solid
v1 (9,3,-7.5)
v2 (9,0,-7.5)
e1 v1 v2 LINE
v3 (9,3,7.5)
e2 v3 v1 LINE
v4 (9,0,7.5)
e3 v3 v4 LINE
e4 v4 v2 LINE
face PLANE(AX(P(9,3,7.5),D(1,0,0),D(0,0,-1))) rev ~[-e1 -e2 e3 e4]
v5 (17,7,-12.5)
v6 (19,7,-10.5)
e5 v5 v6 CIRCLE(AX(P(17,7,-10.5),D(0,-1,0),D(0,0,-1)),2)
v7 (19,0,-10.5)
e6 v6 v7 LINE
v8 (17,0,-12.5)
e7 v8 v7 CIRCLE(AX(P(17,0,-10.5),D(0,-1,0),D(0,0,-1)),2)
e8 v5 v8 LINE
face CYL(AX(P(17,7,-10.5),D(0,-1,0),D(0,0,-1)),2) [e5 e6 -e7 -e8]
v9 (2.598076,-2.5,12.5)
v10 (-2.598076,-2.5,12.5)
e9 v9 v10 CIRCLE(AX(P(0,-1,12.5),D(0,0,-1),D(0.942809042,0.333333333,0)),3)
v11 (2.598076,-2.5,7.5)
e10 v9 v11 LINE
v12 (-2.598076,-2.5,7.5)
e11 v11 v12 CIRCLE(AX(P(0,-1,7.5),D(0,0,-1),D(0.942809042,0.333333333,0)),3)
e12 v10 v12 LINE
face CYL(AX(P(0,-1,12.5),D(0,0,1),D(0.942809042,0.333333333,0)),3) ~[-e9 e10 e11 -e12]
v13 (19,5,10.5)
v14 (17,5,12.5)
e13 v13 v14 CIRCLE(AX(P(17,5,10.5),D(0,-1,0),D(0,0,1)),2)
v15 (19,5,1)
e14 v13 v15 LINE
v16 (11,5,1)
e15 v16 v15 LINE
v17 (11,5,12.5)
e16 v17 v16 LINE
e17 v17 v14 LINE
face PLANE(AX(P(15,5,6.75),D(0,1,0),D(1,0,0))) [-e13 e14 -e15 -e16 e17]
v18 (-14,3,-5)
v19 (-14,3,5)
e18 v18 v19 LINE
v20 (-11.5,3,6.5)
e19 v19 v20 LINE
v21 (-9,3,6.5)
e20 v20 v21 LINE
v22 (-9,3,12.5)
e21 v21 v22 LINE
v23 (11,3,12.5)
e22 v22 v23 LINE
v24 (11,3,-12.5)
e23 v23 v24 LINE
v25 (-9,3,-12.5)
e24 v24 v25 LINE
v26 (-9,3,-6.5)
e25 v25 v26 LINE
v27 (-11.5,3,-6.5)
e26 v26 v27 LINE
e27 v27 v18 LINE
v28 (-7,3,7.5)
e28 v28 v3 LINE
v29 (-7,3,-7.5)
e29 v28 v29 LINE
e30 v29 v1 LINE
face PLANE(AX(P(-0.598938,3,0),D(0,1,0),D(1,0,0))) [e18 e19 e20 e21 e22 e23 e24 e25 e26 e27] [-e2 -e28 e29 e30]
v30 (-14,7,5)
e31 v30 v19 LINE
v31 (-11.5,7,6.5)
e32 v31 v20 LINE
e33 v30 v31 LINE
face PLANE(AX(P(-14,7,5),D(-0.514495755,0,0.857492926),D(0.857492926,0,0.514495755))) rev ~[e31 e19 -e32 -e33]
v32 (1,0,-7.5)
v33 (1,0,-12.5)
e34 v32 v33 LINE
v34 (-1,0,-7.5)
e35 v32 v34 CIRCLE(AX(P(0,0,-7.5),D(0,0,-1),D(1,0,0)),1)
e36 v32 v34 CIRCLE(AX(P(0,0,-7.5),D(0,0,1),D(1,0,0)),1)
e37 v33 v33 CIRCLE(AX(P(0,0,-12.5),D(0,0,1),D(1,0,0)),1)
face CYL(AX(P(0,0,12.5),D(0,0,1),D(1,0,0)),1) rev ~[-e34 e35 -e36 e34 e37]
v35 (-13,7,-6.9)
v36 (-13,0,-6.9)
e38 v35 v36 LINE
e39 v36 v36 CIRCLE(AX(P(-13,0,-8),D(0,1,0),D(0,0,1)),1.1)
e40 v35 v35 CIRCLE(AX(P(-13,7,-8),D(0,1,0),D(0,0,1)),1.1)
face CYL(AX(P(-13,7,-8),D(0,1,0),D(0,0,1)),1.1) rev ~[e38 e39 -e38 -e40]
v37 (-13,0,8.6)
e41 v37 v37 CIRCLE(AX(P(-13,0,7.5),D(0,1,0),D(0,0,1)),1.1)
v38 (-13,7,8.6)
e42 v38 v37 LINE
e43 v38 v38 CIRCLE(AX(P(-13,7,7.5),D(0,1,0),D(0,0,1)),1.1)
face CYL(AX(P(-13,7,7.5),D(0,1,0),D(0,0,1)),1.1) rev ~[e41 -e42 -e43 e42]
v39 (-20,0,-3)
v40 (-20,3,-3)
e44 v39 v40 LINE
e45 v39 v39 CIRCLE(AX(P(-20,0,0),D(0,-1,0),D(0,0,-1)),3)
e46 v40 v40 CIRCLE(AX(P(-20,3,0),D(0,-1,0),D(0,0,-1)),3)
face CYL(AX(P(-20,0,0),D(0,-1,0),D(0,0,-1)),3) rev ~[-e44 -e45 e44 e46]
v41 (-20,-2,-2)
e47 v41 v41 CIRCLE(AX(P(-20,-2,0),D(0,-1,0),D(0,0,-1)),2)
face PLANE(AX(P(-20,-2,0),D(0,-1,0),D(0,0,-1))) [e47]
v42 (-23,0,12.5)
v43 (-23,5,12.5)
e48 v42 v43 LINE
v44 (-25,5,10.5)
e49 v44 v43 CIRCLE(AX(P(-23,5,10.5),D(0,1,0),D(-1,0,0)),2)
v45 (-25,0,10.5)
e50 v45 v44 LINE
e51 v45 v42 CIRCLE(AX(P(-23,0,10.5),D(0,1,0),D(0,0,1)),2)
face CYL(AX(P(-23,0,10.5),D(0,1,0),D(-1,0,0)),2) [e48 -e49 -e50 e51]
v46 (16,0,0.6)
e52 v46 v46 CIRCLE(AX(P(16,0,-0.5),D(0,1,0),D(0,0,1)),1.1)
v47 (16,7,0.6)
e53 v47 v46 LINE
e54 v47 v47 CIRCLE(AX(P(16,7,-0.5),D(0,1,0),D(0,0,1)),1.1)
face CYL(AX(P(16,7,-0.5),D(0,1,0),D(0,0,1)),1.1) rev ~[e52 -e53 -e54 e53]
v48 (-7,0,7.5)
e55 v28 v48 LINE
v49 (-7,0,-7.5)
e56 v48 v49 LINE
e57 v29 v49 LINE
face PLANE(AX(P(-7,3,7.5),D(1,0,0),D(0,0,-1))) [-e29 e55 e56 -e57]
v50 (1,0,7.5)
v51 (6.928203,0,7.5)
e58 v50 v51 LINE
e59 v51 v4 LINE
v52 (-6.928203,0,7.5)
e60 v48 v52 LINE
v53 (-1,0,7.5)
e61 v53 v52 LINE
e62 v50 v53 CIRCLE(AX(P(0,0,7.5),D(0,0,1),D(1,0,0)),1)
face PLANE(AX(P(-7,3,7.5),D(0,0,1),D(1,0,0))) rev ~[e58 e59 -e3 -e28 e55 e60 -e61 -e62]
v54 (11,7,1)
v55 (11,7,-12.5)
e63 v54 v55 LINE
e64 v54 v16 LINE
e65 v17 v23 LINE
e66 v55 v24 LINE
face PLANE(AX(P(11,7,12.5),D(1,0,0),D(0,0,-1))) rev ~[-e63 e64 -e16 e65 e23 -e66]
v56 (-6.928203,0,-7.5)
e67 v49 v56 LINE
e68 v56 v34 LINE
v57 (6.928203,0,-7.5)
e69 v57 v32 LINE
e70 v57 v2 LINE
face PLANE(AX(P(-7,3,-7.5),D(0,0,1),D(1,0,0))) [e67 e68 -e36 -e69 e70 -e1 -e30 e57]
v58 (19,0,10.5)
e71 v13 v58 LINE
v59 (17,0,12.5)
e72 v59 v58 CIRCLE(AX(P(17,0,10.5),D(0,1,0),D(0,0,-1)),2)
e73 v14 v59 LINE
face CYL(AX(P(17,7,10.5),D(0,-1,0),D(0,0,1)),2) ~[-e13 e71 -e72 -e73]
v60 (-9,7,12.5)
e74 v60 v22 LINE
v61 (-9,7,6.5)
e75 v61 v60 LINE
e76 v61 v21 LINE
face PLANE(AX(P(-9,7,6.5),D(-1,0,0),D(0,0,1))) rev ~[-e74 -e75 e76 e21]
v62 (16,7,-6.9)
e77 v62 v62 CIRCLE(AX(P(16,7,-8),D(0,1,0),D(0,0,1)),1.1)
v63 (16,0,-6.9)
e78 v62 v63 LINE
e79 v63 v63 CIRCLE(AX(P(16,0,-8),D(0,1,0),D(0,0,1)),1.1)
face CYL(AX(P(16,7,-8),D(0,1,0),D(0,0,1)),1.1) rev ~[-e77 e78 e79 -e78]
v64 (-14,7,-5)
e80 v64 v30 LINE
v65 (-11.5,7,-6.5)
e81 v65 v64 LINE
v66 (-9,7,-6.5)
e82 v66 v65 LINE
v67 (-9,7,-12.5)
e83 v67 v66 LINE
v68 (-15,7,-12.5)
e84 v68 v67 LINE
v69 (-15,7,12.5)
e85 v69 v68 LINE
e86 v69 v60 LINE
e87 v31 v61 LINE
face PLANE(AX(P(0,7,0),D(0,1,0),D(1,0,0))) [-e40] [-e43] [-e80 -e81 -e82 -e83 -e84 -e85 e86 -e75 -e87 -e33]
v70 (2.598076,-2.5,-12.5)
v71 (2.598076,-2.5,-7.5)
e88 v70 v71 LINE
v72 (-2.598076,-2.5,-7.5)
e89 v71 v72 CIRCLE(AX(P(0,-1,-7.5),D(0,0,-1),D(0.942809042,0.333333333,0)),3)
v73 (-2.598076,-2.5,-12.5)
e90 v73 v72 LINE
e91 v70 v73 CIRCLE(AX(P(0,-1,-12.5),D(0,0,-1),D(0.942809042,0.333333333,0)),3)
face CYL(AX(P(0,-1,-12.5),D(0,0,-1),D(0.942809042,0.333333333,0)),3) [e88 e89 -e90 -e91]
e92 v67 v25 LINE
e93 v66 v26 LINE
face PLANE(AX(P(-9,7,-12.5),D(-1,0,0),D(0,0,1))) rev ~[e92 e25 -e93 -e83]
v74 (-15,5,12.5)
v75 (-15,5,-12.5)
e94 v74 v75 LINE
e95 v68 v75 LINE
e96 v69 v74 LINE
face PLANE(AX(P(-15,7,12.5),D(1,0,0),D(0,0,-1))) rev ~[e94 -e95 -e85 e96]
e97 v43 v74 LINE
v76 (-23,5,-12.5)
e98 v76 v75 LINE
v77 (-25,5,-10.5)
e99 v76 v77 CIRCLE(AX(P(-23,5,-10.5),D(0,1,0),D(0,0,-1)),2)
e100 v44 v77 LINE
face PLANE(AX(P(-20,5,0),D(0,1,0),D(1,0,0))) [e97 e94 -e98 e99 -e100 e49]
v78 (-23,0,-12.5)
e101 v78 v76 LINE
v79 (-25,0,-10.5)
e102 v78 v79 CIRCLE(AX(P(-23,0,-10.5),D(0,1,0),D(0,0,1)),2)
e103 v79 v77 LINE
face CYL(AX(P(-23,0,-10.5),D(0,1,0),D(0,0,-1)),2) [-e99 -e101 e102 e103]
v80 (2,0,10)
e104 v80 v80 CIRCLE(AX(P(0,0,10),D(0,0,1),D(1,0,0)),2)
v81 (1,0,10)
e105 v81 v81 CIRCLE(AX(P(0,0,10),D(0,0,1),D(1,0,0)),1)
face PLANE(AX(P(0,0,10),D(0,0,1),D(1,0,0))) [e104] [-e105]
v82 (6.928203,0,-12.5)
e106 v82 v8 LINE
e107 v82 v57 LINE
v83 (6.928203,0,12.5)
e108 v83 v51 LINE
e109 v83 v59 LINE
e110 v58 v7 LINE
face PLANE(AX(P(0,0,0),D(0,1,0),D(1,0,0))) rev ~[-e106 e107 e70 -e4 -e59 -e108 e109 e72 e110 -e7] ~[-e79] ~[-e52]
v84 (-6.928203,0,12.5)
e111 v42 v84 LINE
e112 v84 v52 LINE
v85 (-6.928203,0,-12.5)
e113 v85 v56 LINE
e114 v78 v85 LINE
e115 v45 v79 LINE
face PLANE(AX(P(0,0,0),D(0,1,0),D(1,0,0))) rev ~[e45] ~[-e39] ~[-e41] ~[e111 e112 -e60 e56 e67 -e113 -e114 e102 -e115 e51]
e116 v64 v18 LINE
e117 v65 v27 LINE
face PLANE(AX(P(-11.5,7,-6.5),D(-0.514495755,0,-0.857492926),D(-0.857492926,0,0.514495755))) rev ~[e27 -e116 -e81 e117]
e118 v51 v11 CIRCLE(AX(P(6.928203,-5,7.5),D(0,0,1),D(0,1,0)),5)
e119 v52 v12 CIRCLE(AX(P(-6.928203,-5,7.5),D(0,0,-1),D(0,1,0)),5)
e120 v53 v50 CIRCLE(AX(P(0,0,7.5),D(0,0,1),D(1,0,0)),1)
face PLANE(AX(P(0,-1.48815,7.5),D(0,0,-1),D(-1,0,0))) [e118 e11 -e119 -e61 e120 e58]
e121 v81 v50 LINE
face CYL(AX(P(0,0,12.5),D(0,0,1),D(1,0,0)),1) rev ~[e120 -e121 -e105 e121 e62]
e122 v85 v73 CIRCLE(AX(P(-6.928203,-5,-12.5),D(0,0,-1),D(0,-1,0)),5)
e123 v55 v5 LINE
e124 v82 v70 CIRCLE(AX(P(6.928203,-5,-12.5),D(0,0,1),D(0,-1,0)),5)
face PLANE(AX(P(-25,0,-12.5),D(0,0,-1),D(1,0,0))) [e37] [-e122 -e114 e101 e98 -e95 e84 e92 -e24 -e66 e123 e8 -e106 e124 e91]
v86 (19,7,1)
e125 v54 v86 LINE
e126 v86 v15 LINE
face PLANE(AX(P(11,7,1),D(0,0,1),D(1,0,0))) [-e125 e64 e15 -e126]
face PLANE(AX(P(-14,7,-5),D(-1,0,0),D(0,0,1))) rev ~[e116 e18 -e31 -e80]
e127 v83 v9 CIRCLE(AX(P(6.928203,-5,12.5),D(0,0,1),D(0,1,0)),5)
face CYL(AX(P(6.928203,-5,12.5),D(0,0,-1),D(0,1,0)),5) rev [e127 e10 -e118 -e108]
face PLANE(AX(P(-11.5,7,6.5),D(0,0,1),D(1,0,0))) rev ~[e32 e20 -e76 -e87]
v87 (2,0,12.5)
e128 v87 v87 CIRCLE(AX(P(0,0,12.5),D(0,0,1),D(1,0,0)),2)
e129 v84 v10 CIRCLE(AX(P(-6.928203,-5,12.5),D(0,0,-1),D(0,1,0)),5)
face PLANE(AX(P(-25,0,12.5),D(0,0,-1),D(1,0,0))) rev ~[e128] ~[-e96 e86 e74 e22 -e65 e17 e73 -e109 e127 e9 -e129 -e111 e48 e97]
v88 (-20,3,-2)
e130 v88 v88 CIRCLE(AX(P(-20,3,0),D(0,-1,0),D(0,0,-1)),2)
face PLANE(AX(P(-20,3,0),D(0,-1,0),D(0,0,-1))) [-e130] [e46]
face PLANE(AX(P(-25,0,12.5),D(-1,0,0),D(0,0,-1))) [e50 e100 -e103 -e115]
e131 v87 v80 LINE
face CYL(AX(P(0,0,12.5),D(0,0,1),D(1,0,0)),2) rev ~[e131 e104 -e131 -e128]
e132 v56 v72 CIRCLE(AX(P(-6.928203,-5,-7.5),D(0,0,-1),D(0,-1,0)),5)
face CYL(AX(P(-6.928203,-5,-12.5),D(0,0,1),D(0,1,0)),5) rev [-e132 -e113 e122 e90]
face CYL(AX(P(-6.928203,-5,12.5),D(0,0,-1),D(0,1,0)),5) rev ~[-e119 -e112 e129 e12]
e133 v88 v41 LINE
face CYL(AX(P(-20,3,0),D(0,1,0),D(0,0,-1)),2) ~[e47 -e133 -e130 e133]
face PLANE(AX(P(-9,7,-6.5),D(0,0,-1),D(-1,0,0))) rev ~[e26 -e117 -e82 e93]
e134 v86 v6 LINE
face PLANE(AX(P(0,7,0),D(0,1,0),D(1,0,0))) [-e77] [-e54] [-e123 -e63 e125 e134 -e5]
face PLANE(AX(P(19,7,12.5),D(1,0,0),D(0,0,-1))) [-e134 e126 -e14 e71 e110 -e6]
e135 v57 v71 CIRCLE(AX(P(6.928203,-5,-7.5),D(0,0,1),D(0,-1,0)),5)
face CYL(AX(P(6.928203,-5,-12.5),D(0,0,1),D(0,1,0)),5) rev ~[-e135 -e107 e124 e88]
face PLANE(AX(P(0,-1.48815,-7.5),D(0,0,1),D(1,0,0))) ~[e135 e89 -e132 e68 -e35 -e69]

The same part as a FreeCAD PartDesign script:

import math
import FreeCAD as App
import Part
import Sketcher
from FreeCAD import Vector


def edges_at(feature, points):
    """Names of the edges that pass closest to the given points."""
    edges = feature.Shape.Edges
    near = lambda p: min(range(len(edges)), key=lambda i: edges[i].distToShape(Part.Vertex(*p))[0])
    return sorted({f"Edge{near(p) + 1}" for p in points})


def add_polygon(sketch, points):
    """Adds a closed chain of lines whose ends are joined by coincident constraints."""
    first, n = sketch.GeometryCount, len(points)
    for a, b in zip(points, points[1:] + points[:1]):
        sketch.addGeometry(Part.LineSegment(App.Vector(*a, 0), App.Vector(*b, 0)), False)
    for i in range(n):
        sketch.addConstraint(Sketcher.Constraint("Coincident", first + i, 2, first + (i + 1) % n, 1))

doc = App.newDocument("Part")
body = doc.addObject("PartDesign::Body", "Body")

sketch1 = doc.addObject("Sketcher::SketchObject", "Sketch")
body.addObject(sketch1)
sketch1.AttachmentSupport = (doc.XZ_Plane, [""])
sketch1.MapMode = "FlatFace"
add_polygon(sketch1, [(-25, -12), (-25, 12), (25, 12), (25, -12)])
sketch1.addConstraint(Sketcher.Constraint("Vertical", 0))
sketch1.addConstraint(Sketcher.Constraint("Horizontal", 1))
sketch1.addConstraint(Sketcher.Constraint("Vertical", 2))
sketch1.addConstraint(Sketcher.Constraint("Horizontal", 3))
sketch1.addConstraint(Sketcher.Constraint("Symmetric", 0, 2, 2, 2, -1, 1))
sketch1.addConstraint(Sketcher.Constraint("DistanceX", 1, 1, 1, 2, 50.0))
sketch1.addConstraint(Sketcher.Constraint("DistanceY", 0, 1, 0, 2, 25.0))
pad1 = doc.addObject("PartDesign::Pad", "Pad")
body.addObject(pad1)
pad1.Profile = sketch1
pad1.Length = 7
pad1.Reversed = True

sketch2 = doc.addObject("Sketcher::SketchObject", "Sketch001")
body.addObject(sketch2)
sketch2.AttachmentSupport = (doc.XY_Plane, [""])
sketch2.MapMode = "FlatFace"
sketch2.AttachmentOffset = App.Placement(Vector(0, 0, 12.5), App.Rotation())
sketch2.addGeometry(Part.LineSegment(Vector(2.8, 0, 0), Vector(-2.8, 0, 0)), False)
sketch2.addGeometry(Part.ArcOfCircle(Part.Circle(Vector(0, -1, 0), Vector(0, 0, 1), 3), math.radians(161), math.radians(379)), False)
sketch2.addConstraint(Sketcher.Constraint("Coincident", 0, 1, 1, 2))
sketch2.addConstraint(Sketcher.Constraint("Coincident", 1, 1, 0, 2))
sketch2.addConstraint(Sketcher.Constraint("Horizontal", 0))
sketch2.addConstraint(Sketcher.Constraint("Symmetric", 0, 1, 1, 1, -1, 1))
sketch2.addConstraint(Sketcher.Constraint("Radius", 1, 3.0))
sketch2.addConstraint(Sketcher.Constraint("DistanceY", 1, 3, -1, 1, 1.0))
pad2 = doc.addObject("PartDesign::Pad", "Pad001")
body.addObject(pad2)
pad2.Profile = sketch2
pad2.Length = 5
pad2.Reversed = True

sketch3 = doc.addObject("Sketcher::SketchObject", "Sketch002")
body.addObject(sketch3)
sketch3.AttachmentSupport = (doc.XY_Plane, [""])
sketch3.MapMode = "FlatFace"
sketch3.AttachmentOffset = App.Placement(Vector(0, 0, 12.5), App.Rotation())
sketch3.addGeometry(Part.Circle(Vector(0, 0, 0), Vector(0, 0, 1), 1), False)
sketch3.addConstraint(Sketcher.Constraint("Coincident", 0, 3, -1, 1))
sketch3.addConstraint(Sketcher.Constraint("Diameter", 0, 2.0))
pocket1 = doc.addObject("PartDesign::Pocket", "Pocket")
body.addObject(pocket1)
pocket1.Profile = sketch3
pocket1.Type = "ThroughAll"
doc.recompute()

mirrored = doc.addObject("PartDesign::Mirrored", "Mirrored")
body.addObject(mirrored)
mirrored.Originals = [pad2, pocket1]
mirrored.MirrorPlane = (doc.XY_Plane, [""])
body.Tip = mirrored

sketch4 = doc.addObject("Sketcher::SketchObject", "Sketch003")
body.addObject(sketch4)
sketch4.AttachmentSupport = (doc.XZ_Plane, [""])
sketch4.MapMode = "FlatFace"
sketch4.AttachmentOffset = App.Placement(Vector(0, 0, -7), App.Rotation())
add_polygon(sketch4, [(19, -12), (19, 12), (25, 12), (25, -12)])
sketch4.addConstraint(Sketcher.Constraint("Vertical", 0))
sketch4.addConstraint(Sketcher.Constraint("Horizontal", 1))
sketch4.addConstraint(Sketcher.Constraint("Vertical", 2))
sketch4.addConstraint(Sketcher.Constraint("Horizontal", 3))
sketch4.addConstraint(Sketcher.Constraint("DistanceX", 1, 1, 1, 2, 6.0))
sketch4.addConstraint(Sketcher.Constraint("DistanceY", 0, 1, 0, 2, 25.0))
sketch4.addConstraint(Sketcher.Constraint("DistanceX", -1, 1, 0, 2, 19.0))
sketch4.addConstraint(Sketcher.Constraint("DistanceY", -1, 1, 0, 2, 12.5))
pocket2 = doc.addObject("PartDesign::Pocket", "Pocket001")
body.addObject(pocket2)
pocket2.Profile = sketch4
pocket2.Type = "ThroughAll"
pocket2.Reversed = True

sketch5 = doc.addObject("Sketcher::SketchObject", "Sketch004")
body.addObject(sketch5)
sketch5.AttachmentSupport = (doc.XY_Plane, [""])
sketch5.MapMode = "FlatFace"
sketch5.AttachmentOffset = App.Placement(Vector(0, 0, 12.5), App.Rotation())
sketch5.addGeometry(Part.Circle(Vector(0, 0, 0), Vector(0, 0, 1), 2), False)
sketch5.addConstraint(Sketcher.Constraint("Coincident", 0, 3, -1, 1))
sketch5.addConstraint(Sketcher.Constraint("Diameter", 0, 4.0))
pocket3 = doc.addObject("PartDesign::Pocket", "Pocket002")
body.addObject(pocket3)
pocket3.Profile = sketch5
pocket3.Length = 2.5
doc.recompute()

fillet = doc.addObject("PartDesign::Fillet", "Fillet")
body.addObject(fillet)
fillet.Base = (pocket3, edges_at(pocket3, [
    (19, 3.5, 12.5),
    (19, 3.5, -12.5),
    (-25, 3.5, 12.5),
    (-25, 3.5, -12.5),
]))
fillet.Radius = 2
doc.recompute()

fillet2 = doc.addObject("PartDesign::Fillet", "Fillet001")
body.addObject(fillet2)
fillet2.Base = (fillet, edges_at(fillet, [
    (2.828, 0, 10),
    (-2.828, 0, 10),
    (2.828, 0, -10),
    (-2.828, 0, -10),
]))
fillet2.Radius = 5

sketch6 = doc.addObject("Sketcher::SketchObject", "Sketch005")
body.addObject(sketch6)
sketch6.AttachmentSupport = (doc.XZ_Plane, [""])
sketch6.MapMode = "FlatFace"
sketch6.AttachmentOffset = App.Placement(Vector(0, 0, -7), App.Rotation())
sketch6.addGeometry(Part.Circle(Vector(-13, -8, 0), Vector(0, 0, 1), 1.1), False)
sketch6.addGeometry(Part.Circle(Vector(-13, 7.5, 0), Vector(0, 0, 1), 1.1), False)
sketch6.addGeometry(Part.Circle(Vector(16, -8, 0), Vector(0, 0, 1), 1.1), False)
sketch6.addGeometry(Part.Circle(Vector(16, -0.5, 0), Vector(0, 0, 1), 1.1), False)
sketch6.addConstraint(Sketcher.Constraint("Equal", 0, 1))
sketch6.addConstraint(Sketcher.Constraint("Equal", 1, 2))
sketch6.addConstraint(Sketcher.Constraint("Equal", 2, 3))
sketch6.addConstraint(Sketcher.Constraint("Horizontal", 0, 3, 2, 3))
sketch6.addConstraint(Sketcher.Constraint("Vertical", 0, 3, 1, 3))
sketch6.addConstraint(Sketcher.Constraint("Vertical", 2, 3, 3, 3))
sketch6.addConstraint(Sketcher.Constraint("Diameter", 0, 2.2))
sketch6.addConstraint(Sketcher.Constraint("DistanceX", 0, 3, -1, 1, 13.0))
sketch6.addConstraint(Sketcher.Constraint("DistanceY", 0, 3, -1, 1, 8.0))
sketch6.addConstraint(Sketcher.Constraint("DistanceX", -1, 1, 2, 3, 16.0))
sketch6.addConstraint(Sketcher.Constraint("DistanceY", 3, 3, 1, 3, 8.0))
sketch6.addConstraint(Sketcher.Constraint("DistanceY", -1, 1, 1, 3, 7.5))
pocket4 = doc.addObject("PartDesign::Pocket", "Pocket003")
body.addObject(pocket4)
pocket4.Profile = sketch6
pocket4.Type = "ThroughAll"
pocket4.Reversed = True

sketch7 = doc.addObject("Sketcher::SketchObject", "Sketch006")
body.addObject(sketch7)
sketch7.AttachmentSupport = (doc.XZ_Plane, [""])
sketch7.MapMode = "FlatFace"
sketch7.AttachmentOffset = App.Placement(Vector(0, 0, -7), App.Rotation())
add_polygon(sketch7, [(-9, 12.5), (11, 12.5), (11, -12.5), (-9, -12.5), (-9, -6.5), (-11.5, -6.5), (-14, -5), (-14, 5), (-11.5, 6.5), (-9, 6.5)])
sketch7.addConstraint(Sketcher.Constraint("Horizontal", 0))
sketch7.addConstraint(Sketcher.Constraint("Vertical", 1))
sketch7.addConstraint(Sketcher.Constraint("Horizontal", 2))
sketch7.addConstraint(Sketcher.Constraint("Vertical", 3))
sketch7.addConstraint(Sketcher.Constraint("Horizontal", 4))
sketch7.addConstraint(Sketcher.Constraint("Vertical", 6))
sketch7.addConstraint(Sketcher.Constraint("Horizontal", 8))
sketch7.addConstraint(Sketcher.Constraint("Vertical", 9))
sketch7.addConstraint(Sketcher.Constraint("Symmetric", 4, 2, 7, 2, -1))
sketch7.addConstraint(Sketcher.Constraint("Symmetric", 2, 2, 9, 2, -1))
sketch7.addConstraint(Sketcher.Constraint("Equal", 5, 7))
sketch7.addConstraint(Sketcher.Constraint("DistanceX", 0, 1, 0, 2, 20.0))
sketch7.addConstraint(Sketcher.Constraint("DistanceY", 1, 2, 1, 1, 25.0))
sketch7.addConstraint(Sketcher.Constraint("DistanceY", 3, 1, 3, 2, 6.0))
sketch7.addConstraint(Sketcher.Constraint("DistanceY", 6, 1, 6, 2, 10.0))
sketch7.addConstraint(Sketcher.Constraint("DistanceX", 4, 2, 4, 1, 2.5))
sketch7.addConstraint(Sketcher.Constraint("DistanceX", -1, 1, 0, 2, 11.0))
sketch7.addConstraint(Sketcher.Constraint("DistanceX", 5, 2, -1, 1, 14.0))
pocket5 = doc.addObject("PartDesign::Pocket", "Pocket004")
body.addObject(pocket5)
pocket5.Profile = sketch7
pocket5.Length = 4
pocket5.Reversed = True

sketch8 = doc.addObject("Sketcher::SketchObject", "Sketch007")
body.addObject(sketch8)
sketch8.AttachmentSupport = (doc.XZ_Plane, [""])
sketch8.MapMode = "FlatFace"
sketch8.AttachmentOffset = App.Placement(Vector(0, 0, -3), App.Rotation())
add_polygon(sketch8, [(-7, -8), (-7, 8), (9, 8), (9, -8)])
sketch8.addConstraint(Sketcher.Constraint("Vertical", 0))
sketch8.addConstraint(Sketcher.Constraint("Horizontal", 1))
sketch8.addConstraint(Sketcher.Constraint("Vertical", 2))
sketch8.addConstraint(Sketcher.Constraint("Horizontal", 3))
sketch8.addConstraint(Sketcher.Constraint("DistanceX", 1, 1, 1, 2, 16.0))
sketch8.addConstraint(Sketcher.Constraint("DistanceY", 0, 1, 0, 2, 15.0))
sketch8.addConstraint(Sketcher.Constraint("DistanceX", 0, 2, -1, 1, 7.0))
sketch8.addConstraint(Sketcher.Constraint("DistanceY", -1, 1, 0, 2, 7.5))
pocket6 = doc.addObject("PartDesign::Pocket", "Pocket005")
body.addObject(pocket6)
pocket6.Profile = sketch8
pocket6.Type = "ThroughAll"
pocket6.Reversed = True

sketch9 = doc.addObject("Sketcher::SketchObject", "Sketch008")
body.addObject(sketch9)
sketch9.AttachmentSupport = (doc.XZ_Plane, [""])
sketch9.MapMode = "FlatFace"
sketch9.addGeometry(Part.Circle(Vector(-20, 0, 0), Vector(0, 0, 1), 3), False)
sketch9.addConstraint(Sketcher.Constraint("PointOnObject", 0, 3, -1))
sketch9.addConstraint(Sketcher.Constraint("Diameter", 0, 6.0))
sketch9.addConstraint(Sketcher.Constraint("DistanceX", 0, 3, -1, 1, 20.0))
pocket7 = doc.addObject("PartDesign::Pocket", "Pocket006")
body.addObject(pocket7)
pocket7.Profile = sketch9
pocket7.Length = 3

sketch10 = doc.addObject("Sketcher::SketchObject", "Sketch009")
body.addObject(sketch10)
sketch10.AttachmentSupport = (doc.XZ_Plane, [""])
sketch10.MapMode = "FlatFace"
sketch10.AttachmentOffset = App.Placement(Vector(0, 0, -3), App.Rotation())
sketch10.addGeometry(Part.Circle(Vector(-20, 0, 0), Vector(0, 0, 1), 2), False)
sketch10.addConstraint(Sketcher.Constraint("PointOnObject", 0, 3, -1))
sketch10.addConstraint(Sketcher.Constraint("Diameter", 0, 4.0))
sketch10.addConstraint(Sketcher.Constraint("DistanceX", 0, 3, -1, 1, 20.0))
pad3 = doc.addObject("PartDesign::Pad", "Pad002")
body.addObject(pad3)
pad3.Profile = sketch10
pad3.Length = 5

sketch11 = doc.addObject("Sketcher::SketchObject", "Sketch010")
body.addObject(sketch11)
sketch11.AttachmentSupport = (doc.XZ_Plane, [""])
sketch11.MapMode = "FlatFace"
sketch11.AttachmentOffset = App.Placement(Vector(0, 0, -7), App.Rotation())
add_polygon(sketch11, [(-25, -12), (-25, 12), (-15, 12), (-15, -12)])
add_polygon(sketch11, [(11, 1), (11, 12), (19, 12), (19, 1)])
sketch11.addConstraint(Sketcher.Constraint("Vertical", 0))
sketch11.addConstraint(Sketcher.Constraint("Horizontal", 1))
sketch11.addConstraint(Sketcher.Constraint("Vertical", 2))
sketch11.addConstraint(Sketcher.Constraint("Horizontal", 3))
sketch11.addConstraint(Sketcher.Constraint("Vertical", 4))
sketch11.addConstraint(Sketcher.Constraint("Horizontal", 5))
sketch11.addConstraint(Sketcher.Constraint("Vertical", 6))
sketch11.addConstraint(Sketcher.Constraint("Horizontal", 7))
sketch11.addConstraint(Sketcher.Constraint("Horizontal", 1, 2, 4, 2))
sketch11.addConstraint(Sketcher.Constraint("DistanceX", 1, 1, 1, 2, 10.0))
sketch11.addConstraint(Sketcher.Constraint("DistanceX", 5, 1, 5, 2, 8.0))
sketch11.addConstraint(Sketcher.Constraint("DistanceY", 0, 1, 0, 2, 25.0))
sketch11.addConstraint(Sketcher.Constraint("DistanceY", 4, 1, 4, 2, 11.5))
sketch11.addConstraint(Sketcher.Constraint("DistanceX", 0, 2, -1, 1, 25.0))
sketch11.addConstraint(Sketcher.Constraint("DistanceX", -1, 1, 4, 2, 11.0))
sketch11.addConstraint(Sketcher.Constraint("DistanceY", -1, 1, 6, 2, 1.0))
pocket8 = doc.addObject("PartDesign::Pocket", "Pocket007")
body.addObject(pocket8)
pocket8.Profile = sketch11
pocket8.Length = 2
pocket8.Reversed = True

doc.recompute()
